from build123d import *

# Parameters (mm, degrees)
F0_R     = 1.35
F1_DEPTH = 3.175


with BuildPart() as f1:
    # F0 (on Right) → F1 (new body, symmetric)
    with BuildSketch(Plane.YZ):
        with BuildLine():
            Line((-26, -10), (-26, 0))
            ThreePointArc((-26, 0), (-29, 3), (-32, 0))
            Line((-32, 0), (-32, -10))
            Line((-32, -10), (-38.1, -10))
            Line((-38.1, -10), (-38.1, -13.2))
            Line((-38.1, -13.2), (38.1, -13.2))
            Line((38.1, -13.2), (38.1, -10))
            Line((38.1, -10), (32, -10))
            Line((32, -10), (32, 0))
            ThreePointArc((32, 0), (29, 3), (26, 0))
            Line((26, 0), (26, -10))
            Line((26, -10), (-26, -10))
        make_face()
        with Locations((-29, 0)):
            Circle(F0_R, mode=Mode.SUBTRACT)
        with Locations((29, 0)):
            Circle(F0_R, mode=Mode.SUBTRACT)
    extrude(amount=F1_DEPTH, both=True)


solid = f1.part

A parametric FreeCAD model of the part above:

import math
import FreeCAD as App
import Part
import Sketcher
Q = App.Units.Quantity

doc = App.newDocument("Part")
params = doc.addObject("Spreadsheet::Sheet", "Params")
for row, (alias, value) in enumerate([
    ("sketch1_radius", "3 mm"),
    ("sketch1_diameter", "2.7 mm"),
    ("sketch1_width", "52 mm"),
    ("sketch1_height", "10 mm"),
    ("sketch1_width2", "6.1 mm"),
    ("pad1_length", "6.35 mm"),
], start=1):
    params.set(f"A{row}", alias)
    params.set(f"B{row}", "=" + value)
    params.setAlias(f"B{row}", alias)

body = doc.addObject("PartDesign::Body", "Body")

sketch1 = body.newObject("Sketcher::SketchObject", "Sketch")
sketch1.AttachmentSupport = (doc.getObject("YZ_Plane"), [""])
sketch1.MapMode = "FlatFace"
sketch1.addGeometry([
    Part.LineSegment(App.Vector(-26, -10, 0), App.Vector(-26, 0, 0)),
    Part.ArcOfCircle(Part.Circle(App.Vector(-29, 0, 0), App.Vector(0, 0, 1), 3), math.radians(0), math.radians(180)),
    Part.LineSegment(App.Vector(-32, 0, 0), App.Vector(-32, -10, 0)),
    Part.LineSegment(App.Vector(-32, -10, 0), App.Vector(-38.1, -10, 0)),
    Part.LineSegment(App.Vector(-38.1, -10, 0), App.Vector(-38.1, -13.2, 0)),
    Part.LineSegment(App.Vector(-38.1, -13.2, 0), App.Vector(38.1, -13.2, 0)),
    Part.LineSegment(App.Vector(38.1, -13.2, 0), App.Vector(38.1, -10, 0)),
    Part.LineSegment(App.Vector(38.1, -10, 0), App.Vector(32, -10, 0)),
    Part.LineSegment(App.Vector(32, -10, 0), App.Vector(32, 0, 0)),
    Part.ArcOfCircle(Part.Circle(App.Vector(29, 0, 0), App.Vector(0, 0, 1), 3), math.radians(0), math.radians(180)),
    Part.LineSegment(App.Vector(26, 0, 0), App.Vector(26, -10, 0)),
    Part.LineSegment(App.Vector(26, -10, 0), App.Vector(-26, -10, 0)),
    Part.Circle(App.Vector(-29, 0, 0), App.Vector(0, 0, 1), 1.4),
    Part.Circle(App.Vector(29, 0, 0), App.Vector(0, 0, 1), 1.4),
], False)
sketch1.addConstraint([
    Sketcher.Constraint("Tangent", 0, 2, 1, 1),
    Sketcher.Constraint("Tangent", 1, 2, 2, 1),
    Sketcher.Constraint("Coincident", 2, 2, 3, 1),
    Sketcher.Constraint("Coincident", 3, 2, 4, 1),
    Sketcher.Constraint("Coincident", 4, 2, 5, 1),
    Sketcher.Constraint("Coincident", 5, 2, 6, 1),
    Sketcher.Constraint("Coincident", 6, 2, 7, 1),
    Sketcher.Constraint("Coincident", 7, 2, 8, 1),
    Sketcher.Constraint("Tangent", 8, 2, 9, 1),
    Sketcher.Constraint("Tangent", 9, 2, 10, 1),
    Sketcher.Constraint("Coincident", 10, 2, 11, 1),
    Sketcher.Constraint("Coincident", 11, 2, 0, 1),
    Sketcher.Constraint("Vertical", 0),
    Sketcher.Constraint("Vertical", 2),
    Sketcher.Constraint("Horizontal", 3),
    Sketcher.Constraint("Vertical", 4),
    Sketcher.Constraint("Horizontal", 5),
    Sketcher.Constraint("Vertical", 6),
    Sketcher.Constraint("Horizontal", 7),
    Sketcher.Constraint("Vertical", 8),
    Sketcher.Constraint("Vertical", 10),
    Sketcher.Constraint("Horizontal", 11),
    Sketcher.Constraint("Coincident", 12, 3, 1, 3),
    Sketcher.Constraint("Coincident", 13, 3, 9, 3),
    Sketcher.Constraint("Equal", 1, 9),
    Sketcher.Constraint("Equal", 12, 13),
    Sketcher.Constraint("Symmetric", 1, 3, 9, 3, -1, 1),
    Sketcher.Constraint("Symmetric", 3, 2, 6, 2, -2),
    Sketcher.Constraint("PointOnObject", 1, 3, -1),
    Sketcher.Constraint("Horizontal", 7, 2, 10, 2),
    Sketcher.Constraint("Radius", 1, Q("3 mm")),
    Sketcher.Constraint("Diameter", 12, Q("2.7 mm")),
    Sketcher.Constraint("DistanceX", 11, 2, 11, 1, Q("52 mm")),
    Sketcher.Constraint("DistanceY", 0, 1, 0, 2, Q("10 mm")),
    Sketcher.Constraint("DistanceX", 3, 2, 3, 1, Q("6.1 mm")),
    Sketcher.Constraint("DistanceY", 4, 2, 4, 1, Q("3.2 mm")),
])
sketch1.setExpression("Constraints[30]", "Params.sketch1_radius")
sketch1.setExpression("Constraints[31]", "Params.sketch1_diameter")
sketch1.setExpression("Constraints[32]", "Params.sketch1_width")
sketch1.setExpression("Constraints[33]", "Params.sketch1_height")
sketch1.setExpression("Constraints[34]", "Params.sketch1_width2")
pad1 = body.newObject("PartDesign::Pad", "Pad")
pad1.Profile = sketch1
pad1.setExpression("Length", "Params.pad1_length")
pad1.Midplane = True

doc.recompute()
